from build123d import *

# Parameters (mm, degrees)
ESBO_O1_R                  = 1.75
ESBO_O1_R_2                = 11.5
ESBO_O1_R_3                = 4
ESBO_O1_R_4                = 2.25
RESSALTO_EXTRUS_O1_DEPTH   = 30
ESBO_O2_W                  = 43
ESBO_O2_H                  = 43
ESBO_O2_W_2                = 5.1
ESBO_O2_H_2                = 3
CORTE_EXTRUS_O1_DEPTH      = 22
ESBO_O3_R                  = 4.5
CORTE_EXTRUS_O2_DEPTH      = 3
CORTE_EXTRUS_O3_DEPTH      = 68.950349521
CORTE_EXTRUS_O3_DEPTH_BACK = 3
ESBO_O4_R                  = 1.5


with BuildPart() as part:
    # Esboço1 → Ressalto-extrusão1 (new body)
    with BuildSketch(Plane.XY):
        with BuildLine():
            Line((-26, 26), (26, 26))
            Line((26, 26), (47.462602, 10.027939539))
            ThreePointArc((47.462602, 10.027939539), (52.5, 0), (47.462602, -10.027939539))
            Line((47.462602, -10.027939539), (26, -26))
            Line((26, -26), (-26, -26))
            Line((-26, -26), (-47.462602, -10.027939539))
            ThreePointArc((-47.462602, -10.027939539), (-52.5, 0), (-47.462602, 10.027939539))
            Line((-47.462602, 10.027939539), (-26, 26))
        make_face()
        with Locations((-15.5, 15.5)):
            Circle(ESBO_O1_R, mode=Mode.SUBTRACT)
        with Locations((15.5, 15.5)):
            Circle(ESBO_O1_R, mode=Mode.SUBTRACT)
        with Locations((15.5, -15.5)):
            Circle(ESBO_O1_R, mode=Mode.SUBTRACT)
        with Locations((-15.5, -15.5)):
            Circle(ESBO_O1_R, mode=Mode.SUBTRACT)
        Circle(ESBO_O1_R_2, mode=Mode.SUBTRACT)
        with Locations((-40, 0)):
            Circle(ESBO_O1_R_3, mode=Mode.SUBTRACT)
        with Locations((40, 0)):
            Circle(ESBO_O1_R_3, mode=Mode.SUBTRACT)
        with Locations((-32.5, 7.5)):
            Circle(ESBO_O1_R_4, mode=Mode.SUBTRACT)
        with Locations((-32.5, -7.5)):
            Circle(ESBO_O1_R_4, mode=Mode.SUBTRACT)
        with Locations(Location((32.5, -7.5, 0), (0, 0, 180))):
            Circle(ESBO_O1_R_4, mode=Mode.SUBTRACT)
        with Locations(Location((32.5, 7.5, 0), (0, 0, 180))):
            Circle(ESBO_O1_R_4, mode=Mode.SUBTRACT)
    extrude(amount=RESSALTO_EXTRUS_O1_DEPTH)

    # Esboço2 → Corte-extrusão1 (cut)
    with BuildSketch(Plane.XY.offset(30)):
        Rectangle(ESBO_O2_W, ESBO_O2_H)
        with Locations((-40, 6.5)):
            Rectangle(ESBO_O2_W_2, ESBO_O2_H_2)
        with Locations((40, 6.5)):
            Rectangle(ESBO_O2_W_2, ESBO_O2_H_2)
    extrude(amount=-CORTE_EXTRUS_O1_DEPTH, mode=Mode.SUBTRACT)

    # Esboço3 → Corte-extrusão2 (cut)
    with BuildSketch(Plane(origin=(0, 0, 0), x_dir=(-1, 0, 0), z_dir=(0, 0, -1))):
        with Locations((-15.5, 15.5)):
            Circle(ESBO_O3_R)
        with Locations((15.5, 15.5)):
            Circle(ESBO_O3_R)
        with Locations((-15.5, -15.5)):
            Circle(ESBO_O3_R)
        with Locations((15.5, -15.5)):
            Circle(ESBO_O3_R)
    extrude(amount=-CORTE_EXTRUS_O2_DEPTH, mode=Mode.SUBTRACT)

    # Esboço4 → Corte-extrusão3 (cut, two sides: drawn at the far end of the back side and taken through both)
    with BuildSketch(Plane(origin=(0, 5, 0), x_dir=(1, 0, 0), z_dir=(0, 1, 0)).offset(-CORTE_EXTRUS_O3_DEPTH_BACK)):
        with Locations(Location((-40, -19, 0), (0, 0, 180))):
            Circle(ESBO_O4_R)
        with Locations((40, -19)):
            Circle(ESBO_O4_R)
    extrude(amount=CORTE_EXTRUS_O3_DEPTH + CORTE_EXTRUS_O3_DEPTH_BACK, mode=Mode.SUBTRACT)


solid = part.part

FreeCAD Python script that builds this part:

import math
import FreeCAD as App
import Part
import Sketcher
from FreeCAD import Vector


def add_polygon(sketch, points):
    """Adds a closed chain of lines whose ends are joined by coincident constraints."""
    first, n = sketch.GeometryCount, len(points)
    for a, b in zip(points, points[1:] + points[:1]):
        sketch.addGeometry(Part.LineSegment(App.Vector(*a, 0), App.Vector(*b, 0)), False)
    for i in range(n):
        sketch.addConstraint(Sketcher.Constraint("Coincident", first + i, 2, first + (i + 1) % n, 1))

doc = App.newDocument("Part")
params = doc.addObject("Spreadsheet::Sheet", "Params")
for row, (alias, value) in enumerate([
    ("sketch1_diameter", "8 mm"),
    ("sketch1_diameter2", "23 mm"),
    ("sketch1_diameter3", "3.5 mm"),
    ("sketch1_diameter4", "4.5 mm"),
    ("sketch1_radius", "12.5 mm"),
    ("pad1_length", "30 mm"),
    ("sketch2_width", "43 mm"),
    ("sketch2_height", "3 mm"),
    ("sketch2_width2", "5.1 mm"),
    ("pocket1_length", "22 mm"),
    ("sketch3_diameter", "9 mm"),
    ("pocket2_length", "3 mm"),
    ("sketch4_diameter", "3 mm"),
    ("pocket3_length", "68.95035 mm"),
    ("pocket3_length2", "3 mm"),
], start=1):
    params.set(f"A{row}", alias)
    params.set(f"B{row}", "=" + value)
    params.setAlias(f"B{row}", alias)

body = doc.addObject("PartDesign::Body", "Body")

# Sketch on XY plane
sketch1 = body.newObject("Sketcher::SketchObject", "Sketch")
sketch1.AttachmentSupport = (doc.getObject("XY_Plane"), [""])
sketch1.MapMode = "FlatFace"
sketch1.addGeometry([
    Part.LineSegment(Vector(26, 26, 0), Vector(-26, 26, 0)),  # 0
    Part.LineSegment(Vector(-26, 26, 0), Vector(-47.5, 10, 0)),  # 1
    Part.ArcOfCircle(Part.Circle(Vector(-40, 0, 0), Vector(0, 0, 1), 12.5), math.radians(127), math.radians(233)),  # 2
    Part.LineSegment(Vector(-47.5, -10, 0), Vector(-26, -26, 0)),  # 3
    Part.LineSegment(Vector(-26, -26, 0), Vector(26, -26, 0)),  # 4
    Part.LineSegment(Vector(26, -26, 0), Vector(47.5, -10, 0)),  # 5
    Part.ArcOfCircle(Part.Circle(Vector(40, 0, 0), Vector(0, 0, 1), 12.5), math.radians(-53), math.radians(53)),  # 6
    Part.LineSegment(Vector(47.5, 10, 0), Vector(26, 26, 0)),  # 7
    Part.Circle(Vector(15.5, -15.5, 0), Vector(0, 0, 1), 1.8),  # 8
    Part.Circle(Vector(32.5, -7.5, 0), Vector(0, 0, 1), 2.2),  # 9
    Part.Circle(Vector(-15.5, -15.5, 0), Vector(0, 0, 1), 1.8),  # 10
    Part.Circle(Vector(-32.5, -7.5, 0), Vector(0, 0, 1), 2.2),  # 11
    Part.Circle(Vector(40, 0, 0), Vector(0, 0, 1), 4),  # 12
    Part.Circle(Vector(32.5, 7.5, 0), Vector(0, 0, 1), 2.2),  # 13
    Part.Circle(Vector(15.5, 15.5, 0), Vector(0, 0, 1), 1.8),  # 14
    Part.Circle(Vector(0, 0, 0), Vector(0, 0, 1), 11.5),  # 15
    Part.Circle(Vector(-40, 0, 0), Vector(0, 0, 1), 4),  # 16
    Part.Circle(Vector(-32.5, 7.5, 0), Vector(0, 0, 1), 2.2),  # 17
    Part.Circle(Vector(-15.5, 15.5, 0), Vector(0, 0, 1), 1.8),  # 18
], False)
sketch1.addConstraint([
    Sketcher.Constraint("Coincident", 0, 2, 1, 1),
    Sketcher.Constraint("Tangent", 1, 2, 2, 1),
    Sketcher.Constraint("Tangent", 2, 2, 3, 1),
    Sketcher.Constraint("Coincident", 3, 2, 4, 1),
    Sketcher.Constraint("Coincident", 4, 2, 5, 1),
    Sketcher.Constraint("Tangent", 5, 2, 6, 1),
    Sketcher.Constraint("Tangent", 6, 2, 7, 1),
    Sketcher.Constraint("Coincident", 7, 2, 0, 1),
    Sketcher.Constraint("Horizontal", 0),
    Sketcher.Constraint("Horizontal", 4),
    Sketcher.Constraint("Coincident", 15, 3, -1, 1),
    Sketcher.Constraint("Coincident", 12, 3, 6, 3),
    Sketcher.Constraint("Coincident", 16, 3, 2, 3),
    Sketcher.Constraint("Equal", 2, 6),
    Sketcher.Constraint("Equal", 8, 10),
    Sketcher.Constraint("Equal", 9, 11),
    Sketcher.Constraint("Equal", 11, 13),
    Sketcher.Constraint("Equal", 10, 14),
    Sketcher.Constraint("Equal", 12, 16),
    Sketcher.Constraint("Equal", 13, 17),
    Sketcher.Constraint("Equal", 14, 18),
    Sketcher.Constraint("Symmetric", 2, 3, 6, 3, -1, 1),
    Sketcher.Constraint("Symmetric", 11, 3, 13, 3, -1, 1),
    Sketcher.Constraint("Symmetric", 10, 3, 14, 3, -1, 1),
    Sketcher.Constraint("Symmetric", 9, 3, 17, 3, -1, 1),
    Sketcher.Constraint("Symmetric", 8, 3, 18, 3, -1, 1),
    Sketcher.Constraint("Symmetric", 0, 2, 4, 2, -1, 1),
    Sketcher.Constraint("Symmetric", 8, 3, 10, 3, -2),
    Sketcher.Constraint("Symmetric", 9, 3, 11, 3, -2),
    Sketcher.Constraint("Symmetric", 2, 2, 5, 2, -2),
    Sketcher.Constraint("Parallel", 3, 7),
    Sketcher.Constraint("Diameter", 12, 8.0),
    Sketcher.Constraint("Diameter", 15, 23.0),
    Sketcher.Constraint("Diameter", 8, 3.5),
    Sketcher.Constraint("Diameter", 9, 4.5),
    Sketcher.Constraint("Radius", 2, 12.5),
    Sketcher.Constraint("DistanceX", 0, 2, 0, 1, 52.0),
    Sketcher.Constraint("DistanceX", 2, 3, -1, 1, 40.0),
    Sketcher.Constraint("DistanceY", -1, 1, 0, 2, 26.0),
    Sketcher.Constraint("DistanceX", 8, 3, 9, 3, 17.0),
    Sketcher.Constraint("DistanceY", 8, 3, 9, 3, 8.0),
    Sketcher.Constraint("DistanceX", 10, 3, 8, 3, 31.0),
    Sketcher.Constraint("DistanceY", 9, 3, 13, 3, 15.0),
])
sketch1.setExpression("Constraints[31]", "Params.sketch1_diameter")
sketch1.setExpression("Constraints[32]", "Params.sketch1_diameter2")
sketch1.setExpression("Constraints[33]", "Params.sketch1_diameter3")
sketch1.setExpression("Constraints[34]", "Params.sketch1_diameter4")
sketch1.setExpression("Constraints[35]", "Params.sketch1_radius")
pad1 = body.newObject("PartDesign::Pad", "Pad")
pad1.Profile = sketch1
pad1.setExpression("Length", "Params.pad1_length")

# Sketch on XY plane
sketch2 = body.newObject("Sketcher::SketchObject", "Sketch001")
sketch2.AttachmentSupport = (doc.getObject("XY_Plane"), [""])
sketch2.MapMode = "FlatFace"
sketch2.AttachmentOffset = App.Placement(Vector(0, 0, 30), App.Rotation())
add_polygon(sketch2, [(-21.5, 21.5), (-21.5, -21.5), (21.5, -21.5), (21.5, 21.5)])  # lines 0-3
add_polygon(sketch2, [(-42.5, 8), (-42.5, 5), (-37.5, 5), (-37.5, 8)])  # lines 4-7
add_polygon(sketch2, [(37.5, 8), (37.5, 5), (42.5, 5), (42.5, 8)])  # lines 8-11
sketch2.addConstraint([
    Sketcher.Constraint("Vertical", 0),
    Sketcher.Constraint("Horizontal", 1),
    Sketcher.Constraint("Vertical", 2),
    Sketcher.Constraint("Horizontal", 3),
    Sketcher.Constraint("Vertical", 4),
    Sketcher.Constraint("Horizontal", 5),
    Sketcher.Constraint("Vertical", 6),
    Sketcher.Constraint("Horizontal", 7),
    Sketcher.Constraint("Vertical", 8),
    Sketcher.Constraint("Horizontal", 9),
    Sketcher.Constraint("Vertical", 10),
    Sketcher.Constraint("Horizontal", 11),
    Sketcher.Constraint("Symmetric", 0, 2, 2, 2, -1, 1),
    Sketcher.Constraint("Symmetric", 5, 2, 8, 2, -2),
    Sketcher.Constraint("Symmetric", 7, 2, 10, 2, -2),
    Sketcher.Constraint("Equal", 3, 0),
    Sketcher.Constraint("DistanceX", 1, 1, 1, 2, 43.0),
    Sketcher.Constraint("DistanceY", 4, 2, 4, 1, 3.0),
    Sketcher.Constraint("DistanceX", 5, 1, 5, 2, 5.1),
    Sketcher.Constraint("DistanceY", -1, 1, 4, 2, 5.0),
    Sketcher.Constraint("DistanceX", 5, 2, 8, 2, 74.9),
])
sketch2.setExpression("Constraints[28]", "Params.sketch2_width")
sketch2.setExpression("Constraints[29]", "Params.sketch2_height")
sketch2.setExpression("Constraints[30]", "Params.sketch2_width2")
pocket1 = body.newObject("PartDesign::Pocket", "Pocket")
pocket1.Profile = sketch2
pocket1.setExpression("Length", "Params.pocket1_length")

# Sketch on XY plane
sketch3 = body.newObject("Sketcher::SketchObject", "Sketch002")
sketch3.AttachmentSupport = (doc.getObject("XY_Plane"), [""])
sketch3.MapMode = "FlatFace"
sketch3.addGeometry([
    Part.Circle(Vector(15.5, 15.5, 0), Vector(0, 0, 1), 4.5),
    Part.Circle(Vector(-15.5, 15.5, 0), Vector(0, 0, 1), 4.5),
    Part.Circle(Vector(15.5, -15.5, 0), Vector(0, 0, 1), 4.5),
    Part.Circle(Vector(-15.5, -15.5, 0), Vector(0, 0, 1), 4.5),
], False)
sketch3.addConstraint([
    Sketcher.Constraint("Equal", 0, 1),
    Sketcher.Constraint("Equal", 1, 2),
    Sketcher.Constraint("Equal", 2, 3),
    Sketcher.Constraint("Symmetric", 1, 3, 2, 3, -1, 1),
    Sketcher.Constraint("Symmetric", 0, 3, 3, 3, -1, 1),
    Sketcher.Constraint("Symmetric", 0, 3, 1, 3, -2),
    Sketcher.Constraint("Diameter", 0, 9.0),
    Sketcher.Constraint("DistanceX", 1, 3, 0, 3, 31.0),
    Sketcher.Constraint("DistanceY", 2, 3, 0, 3, 31.0),
])
sketch3.setExpression("Constraints[6]", "Params.sketch3_diameter")
pocket2 = body.newObject("PartDesign::Pocket", "Pocket001")
pocket2.Profile = sketch3
pocket2.setExpression("Length", "Params.pocket2_length")
pocket2.Reversed = True

# Sketch on XZ plane
sketch4 = body.newObject("Sketcher::SketchObject", "Sketch003")
sketch4.AttachmentSupport = (doc.getObject("XZ_Plane"), [""])
sketch4.MapMode = "FlatFace"
sketch4.AttachmentOffset = App.Placement(Vector(0, 0, -5), App.Rotation())
sketch4.addGeometry([
    Part.Circle(Vector(-40, 19, 0), Vector(0, 0, 1), 1.5),
    Part.Circle(Vector(40, 19, 0), Vector(0, 0, 1), 1.5),
], False)
sketch4.addConstraint([
    Sketcher.Constraint("Equal", 0, 1),
    Sketcher.Constraint("Symmetric", 0, 3, 1, 3, -2),
    Sketcher.Constraint("Diameter", 0, 3.0),
    Sketcher.Constraint("DistanceX", 0, 3, -1, 1, 40.0),
    Sketcher.Constraint("DistanceY", -1, 1, 0, 3, 19.0),
])
sketch4.setExpression("Constraints[2]", "Params.sketch4_diameter")
pocket3 = body.newObject("PartDesign::Pocket", "Pocket002")
pocket3.Profile = sketch4
pocket3.Type = "TwoLengths"
pocket3.setExpression("Length", "Params.pocket3_length")
pocket3.setExpression("Length2", "Params.pocket3_length2")

doc.recompute()
